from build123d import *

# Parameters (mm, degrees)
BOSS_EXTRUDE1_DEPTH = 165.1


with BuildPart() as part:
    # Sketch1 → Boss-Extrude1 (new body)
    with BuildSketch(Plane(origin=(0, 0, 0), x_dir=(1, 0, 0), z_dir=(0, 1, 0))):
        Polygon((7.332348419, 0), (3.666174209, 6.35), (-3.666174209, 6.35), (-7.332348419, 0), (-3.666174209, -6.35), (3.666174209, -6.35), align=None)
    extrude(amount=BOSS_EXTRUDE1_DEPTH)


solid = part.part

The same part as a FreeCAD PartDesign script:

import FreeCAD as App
import Part
import Sketcher
from FreeCAD import Vector
Q = App.Units.Quantity

doc = App.newDocument("Part")
params = doc.addObject("Spreadsheet::Sheet", "Params")
for row, (alias, value) in enumerate([
    ("pad1_length", "6.5 in"),
], start=1):
    params.set(f"A{row}", alias)
    params.set(f"B{row}", "=" + value)
    params.setAlias(f"B{row}", alias)

body = doc.addObject("PartDesign::Body", "Body")

# Sketch on XZ plane
sketch1 = body.newObject("Sketcher::SketchObject", "Sketch")
sketch1.AttachmentSupport = (doc.getObject("XZ_Plane"), [""])
sketch1.MapMode = "FlatFace"
sketch1.addGeometry(Part.LineSegment(Vector(7.332348, 0, 0), Vector(3.666174, -6.35, 0)), False)
sketch1.addGeometry(Part.LineSegment(Vector(3.666174, -6.35, 0), Vector(-3.666174, -6.35, 0)), False)
sketch1.addGeometry(Part.LineSegment(Vector(-3.666174, -6.35, 0), Vector(-7.332348, 0, 0)), False)
sketch1.addGeometry(Part.LineSegment(Vector(-7.332348, 0, 0), Vector(-3.666174, 6.35, 0)), False)
sketch1.addGeometry(Part.LineSegment(Vector(-3.666174, 6.35, 0), Vector(3.666174, 6.35, 0)), False)
sketch1.addGeometry(Part.LineSegment(Vector(3.666174, 6.35, 0), Vector(7.332348, 0, 0)), False)
sketch1.addConstraint(Sketcher.Constraint("Coincident", 0, 2, 1, 1))
sketch1.addConstraint(Sketcher.Constraint("Coincident", 1, 2, 2, 1))
sketch1.addConstraint(Sketcher.Constraint("Coincident", 2, 2, 3, 1))
sketch1.addConstraint(Sketcher.Constraint("Coincident", 3, 2, 4, 1))
sketch1.addConstraint(Sketcher.Constraint("Coincident", 4, 2, 5, 1))
sketch1.addConstraint(Sketcher.Constraint("Coincident", 5, 2, 0, 1))
sketch1.addConstraint(Sketcher.Constraint("Horizontal", 1))
sketch1.addConstraint(Sketcher.Constraint("Horizontal", 4))
sketch1.addConstraint(Sketcher.Constraint("Symmetric", 0, 2, 3, 2, -1, 1))
sketch1.addConstraint(Sketcher.Constraint("Symmetric", 2, 2, 5, 2, -1, 1))
sketch1.addConstraint(Sketcher.Constraint("PointOnObject", 2, 2, -1))
sketch1.addConstraint(Sketcher.Constraint("Parallel", 2, 5))
sketch1.addConstraint(Sketcher.Constraint("Vertical", 1, 2, 3, 2))
sketch1.addConstraint(Sketcher.Constraint("Angle", 0, Q("-120 deg")))
sketch1.addConstraint(Sketcher.Constraint("DistanceY", 1, 2, 3, 2, Q("0.5 in")))
sketch1.addConstraint(Sketcher.Constraint("DistanceX", 1, 2, 1, 1, 7.332348))
pad1 = body.newObject("PartDesign::Pad", "Pad")
pad1.Profile = sketch1
pad1.setExpression("Length", "Params.pad1_length")
pad1.Reversed = True

doc.recompute()
